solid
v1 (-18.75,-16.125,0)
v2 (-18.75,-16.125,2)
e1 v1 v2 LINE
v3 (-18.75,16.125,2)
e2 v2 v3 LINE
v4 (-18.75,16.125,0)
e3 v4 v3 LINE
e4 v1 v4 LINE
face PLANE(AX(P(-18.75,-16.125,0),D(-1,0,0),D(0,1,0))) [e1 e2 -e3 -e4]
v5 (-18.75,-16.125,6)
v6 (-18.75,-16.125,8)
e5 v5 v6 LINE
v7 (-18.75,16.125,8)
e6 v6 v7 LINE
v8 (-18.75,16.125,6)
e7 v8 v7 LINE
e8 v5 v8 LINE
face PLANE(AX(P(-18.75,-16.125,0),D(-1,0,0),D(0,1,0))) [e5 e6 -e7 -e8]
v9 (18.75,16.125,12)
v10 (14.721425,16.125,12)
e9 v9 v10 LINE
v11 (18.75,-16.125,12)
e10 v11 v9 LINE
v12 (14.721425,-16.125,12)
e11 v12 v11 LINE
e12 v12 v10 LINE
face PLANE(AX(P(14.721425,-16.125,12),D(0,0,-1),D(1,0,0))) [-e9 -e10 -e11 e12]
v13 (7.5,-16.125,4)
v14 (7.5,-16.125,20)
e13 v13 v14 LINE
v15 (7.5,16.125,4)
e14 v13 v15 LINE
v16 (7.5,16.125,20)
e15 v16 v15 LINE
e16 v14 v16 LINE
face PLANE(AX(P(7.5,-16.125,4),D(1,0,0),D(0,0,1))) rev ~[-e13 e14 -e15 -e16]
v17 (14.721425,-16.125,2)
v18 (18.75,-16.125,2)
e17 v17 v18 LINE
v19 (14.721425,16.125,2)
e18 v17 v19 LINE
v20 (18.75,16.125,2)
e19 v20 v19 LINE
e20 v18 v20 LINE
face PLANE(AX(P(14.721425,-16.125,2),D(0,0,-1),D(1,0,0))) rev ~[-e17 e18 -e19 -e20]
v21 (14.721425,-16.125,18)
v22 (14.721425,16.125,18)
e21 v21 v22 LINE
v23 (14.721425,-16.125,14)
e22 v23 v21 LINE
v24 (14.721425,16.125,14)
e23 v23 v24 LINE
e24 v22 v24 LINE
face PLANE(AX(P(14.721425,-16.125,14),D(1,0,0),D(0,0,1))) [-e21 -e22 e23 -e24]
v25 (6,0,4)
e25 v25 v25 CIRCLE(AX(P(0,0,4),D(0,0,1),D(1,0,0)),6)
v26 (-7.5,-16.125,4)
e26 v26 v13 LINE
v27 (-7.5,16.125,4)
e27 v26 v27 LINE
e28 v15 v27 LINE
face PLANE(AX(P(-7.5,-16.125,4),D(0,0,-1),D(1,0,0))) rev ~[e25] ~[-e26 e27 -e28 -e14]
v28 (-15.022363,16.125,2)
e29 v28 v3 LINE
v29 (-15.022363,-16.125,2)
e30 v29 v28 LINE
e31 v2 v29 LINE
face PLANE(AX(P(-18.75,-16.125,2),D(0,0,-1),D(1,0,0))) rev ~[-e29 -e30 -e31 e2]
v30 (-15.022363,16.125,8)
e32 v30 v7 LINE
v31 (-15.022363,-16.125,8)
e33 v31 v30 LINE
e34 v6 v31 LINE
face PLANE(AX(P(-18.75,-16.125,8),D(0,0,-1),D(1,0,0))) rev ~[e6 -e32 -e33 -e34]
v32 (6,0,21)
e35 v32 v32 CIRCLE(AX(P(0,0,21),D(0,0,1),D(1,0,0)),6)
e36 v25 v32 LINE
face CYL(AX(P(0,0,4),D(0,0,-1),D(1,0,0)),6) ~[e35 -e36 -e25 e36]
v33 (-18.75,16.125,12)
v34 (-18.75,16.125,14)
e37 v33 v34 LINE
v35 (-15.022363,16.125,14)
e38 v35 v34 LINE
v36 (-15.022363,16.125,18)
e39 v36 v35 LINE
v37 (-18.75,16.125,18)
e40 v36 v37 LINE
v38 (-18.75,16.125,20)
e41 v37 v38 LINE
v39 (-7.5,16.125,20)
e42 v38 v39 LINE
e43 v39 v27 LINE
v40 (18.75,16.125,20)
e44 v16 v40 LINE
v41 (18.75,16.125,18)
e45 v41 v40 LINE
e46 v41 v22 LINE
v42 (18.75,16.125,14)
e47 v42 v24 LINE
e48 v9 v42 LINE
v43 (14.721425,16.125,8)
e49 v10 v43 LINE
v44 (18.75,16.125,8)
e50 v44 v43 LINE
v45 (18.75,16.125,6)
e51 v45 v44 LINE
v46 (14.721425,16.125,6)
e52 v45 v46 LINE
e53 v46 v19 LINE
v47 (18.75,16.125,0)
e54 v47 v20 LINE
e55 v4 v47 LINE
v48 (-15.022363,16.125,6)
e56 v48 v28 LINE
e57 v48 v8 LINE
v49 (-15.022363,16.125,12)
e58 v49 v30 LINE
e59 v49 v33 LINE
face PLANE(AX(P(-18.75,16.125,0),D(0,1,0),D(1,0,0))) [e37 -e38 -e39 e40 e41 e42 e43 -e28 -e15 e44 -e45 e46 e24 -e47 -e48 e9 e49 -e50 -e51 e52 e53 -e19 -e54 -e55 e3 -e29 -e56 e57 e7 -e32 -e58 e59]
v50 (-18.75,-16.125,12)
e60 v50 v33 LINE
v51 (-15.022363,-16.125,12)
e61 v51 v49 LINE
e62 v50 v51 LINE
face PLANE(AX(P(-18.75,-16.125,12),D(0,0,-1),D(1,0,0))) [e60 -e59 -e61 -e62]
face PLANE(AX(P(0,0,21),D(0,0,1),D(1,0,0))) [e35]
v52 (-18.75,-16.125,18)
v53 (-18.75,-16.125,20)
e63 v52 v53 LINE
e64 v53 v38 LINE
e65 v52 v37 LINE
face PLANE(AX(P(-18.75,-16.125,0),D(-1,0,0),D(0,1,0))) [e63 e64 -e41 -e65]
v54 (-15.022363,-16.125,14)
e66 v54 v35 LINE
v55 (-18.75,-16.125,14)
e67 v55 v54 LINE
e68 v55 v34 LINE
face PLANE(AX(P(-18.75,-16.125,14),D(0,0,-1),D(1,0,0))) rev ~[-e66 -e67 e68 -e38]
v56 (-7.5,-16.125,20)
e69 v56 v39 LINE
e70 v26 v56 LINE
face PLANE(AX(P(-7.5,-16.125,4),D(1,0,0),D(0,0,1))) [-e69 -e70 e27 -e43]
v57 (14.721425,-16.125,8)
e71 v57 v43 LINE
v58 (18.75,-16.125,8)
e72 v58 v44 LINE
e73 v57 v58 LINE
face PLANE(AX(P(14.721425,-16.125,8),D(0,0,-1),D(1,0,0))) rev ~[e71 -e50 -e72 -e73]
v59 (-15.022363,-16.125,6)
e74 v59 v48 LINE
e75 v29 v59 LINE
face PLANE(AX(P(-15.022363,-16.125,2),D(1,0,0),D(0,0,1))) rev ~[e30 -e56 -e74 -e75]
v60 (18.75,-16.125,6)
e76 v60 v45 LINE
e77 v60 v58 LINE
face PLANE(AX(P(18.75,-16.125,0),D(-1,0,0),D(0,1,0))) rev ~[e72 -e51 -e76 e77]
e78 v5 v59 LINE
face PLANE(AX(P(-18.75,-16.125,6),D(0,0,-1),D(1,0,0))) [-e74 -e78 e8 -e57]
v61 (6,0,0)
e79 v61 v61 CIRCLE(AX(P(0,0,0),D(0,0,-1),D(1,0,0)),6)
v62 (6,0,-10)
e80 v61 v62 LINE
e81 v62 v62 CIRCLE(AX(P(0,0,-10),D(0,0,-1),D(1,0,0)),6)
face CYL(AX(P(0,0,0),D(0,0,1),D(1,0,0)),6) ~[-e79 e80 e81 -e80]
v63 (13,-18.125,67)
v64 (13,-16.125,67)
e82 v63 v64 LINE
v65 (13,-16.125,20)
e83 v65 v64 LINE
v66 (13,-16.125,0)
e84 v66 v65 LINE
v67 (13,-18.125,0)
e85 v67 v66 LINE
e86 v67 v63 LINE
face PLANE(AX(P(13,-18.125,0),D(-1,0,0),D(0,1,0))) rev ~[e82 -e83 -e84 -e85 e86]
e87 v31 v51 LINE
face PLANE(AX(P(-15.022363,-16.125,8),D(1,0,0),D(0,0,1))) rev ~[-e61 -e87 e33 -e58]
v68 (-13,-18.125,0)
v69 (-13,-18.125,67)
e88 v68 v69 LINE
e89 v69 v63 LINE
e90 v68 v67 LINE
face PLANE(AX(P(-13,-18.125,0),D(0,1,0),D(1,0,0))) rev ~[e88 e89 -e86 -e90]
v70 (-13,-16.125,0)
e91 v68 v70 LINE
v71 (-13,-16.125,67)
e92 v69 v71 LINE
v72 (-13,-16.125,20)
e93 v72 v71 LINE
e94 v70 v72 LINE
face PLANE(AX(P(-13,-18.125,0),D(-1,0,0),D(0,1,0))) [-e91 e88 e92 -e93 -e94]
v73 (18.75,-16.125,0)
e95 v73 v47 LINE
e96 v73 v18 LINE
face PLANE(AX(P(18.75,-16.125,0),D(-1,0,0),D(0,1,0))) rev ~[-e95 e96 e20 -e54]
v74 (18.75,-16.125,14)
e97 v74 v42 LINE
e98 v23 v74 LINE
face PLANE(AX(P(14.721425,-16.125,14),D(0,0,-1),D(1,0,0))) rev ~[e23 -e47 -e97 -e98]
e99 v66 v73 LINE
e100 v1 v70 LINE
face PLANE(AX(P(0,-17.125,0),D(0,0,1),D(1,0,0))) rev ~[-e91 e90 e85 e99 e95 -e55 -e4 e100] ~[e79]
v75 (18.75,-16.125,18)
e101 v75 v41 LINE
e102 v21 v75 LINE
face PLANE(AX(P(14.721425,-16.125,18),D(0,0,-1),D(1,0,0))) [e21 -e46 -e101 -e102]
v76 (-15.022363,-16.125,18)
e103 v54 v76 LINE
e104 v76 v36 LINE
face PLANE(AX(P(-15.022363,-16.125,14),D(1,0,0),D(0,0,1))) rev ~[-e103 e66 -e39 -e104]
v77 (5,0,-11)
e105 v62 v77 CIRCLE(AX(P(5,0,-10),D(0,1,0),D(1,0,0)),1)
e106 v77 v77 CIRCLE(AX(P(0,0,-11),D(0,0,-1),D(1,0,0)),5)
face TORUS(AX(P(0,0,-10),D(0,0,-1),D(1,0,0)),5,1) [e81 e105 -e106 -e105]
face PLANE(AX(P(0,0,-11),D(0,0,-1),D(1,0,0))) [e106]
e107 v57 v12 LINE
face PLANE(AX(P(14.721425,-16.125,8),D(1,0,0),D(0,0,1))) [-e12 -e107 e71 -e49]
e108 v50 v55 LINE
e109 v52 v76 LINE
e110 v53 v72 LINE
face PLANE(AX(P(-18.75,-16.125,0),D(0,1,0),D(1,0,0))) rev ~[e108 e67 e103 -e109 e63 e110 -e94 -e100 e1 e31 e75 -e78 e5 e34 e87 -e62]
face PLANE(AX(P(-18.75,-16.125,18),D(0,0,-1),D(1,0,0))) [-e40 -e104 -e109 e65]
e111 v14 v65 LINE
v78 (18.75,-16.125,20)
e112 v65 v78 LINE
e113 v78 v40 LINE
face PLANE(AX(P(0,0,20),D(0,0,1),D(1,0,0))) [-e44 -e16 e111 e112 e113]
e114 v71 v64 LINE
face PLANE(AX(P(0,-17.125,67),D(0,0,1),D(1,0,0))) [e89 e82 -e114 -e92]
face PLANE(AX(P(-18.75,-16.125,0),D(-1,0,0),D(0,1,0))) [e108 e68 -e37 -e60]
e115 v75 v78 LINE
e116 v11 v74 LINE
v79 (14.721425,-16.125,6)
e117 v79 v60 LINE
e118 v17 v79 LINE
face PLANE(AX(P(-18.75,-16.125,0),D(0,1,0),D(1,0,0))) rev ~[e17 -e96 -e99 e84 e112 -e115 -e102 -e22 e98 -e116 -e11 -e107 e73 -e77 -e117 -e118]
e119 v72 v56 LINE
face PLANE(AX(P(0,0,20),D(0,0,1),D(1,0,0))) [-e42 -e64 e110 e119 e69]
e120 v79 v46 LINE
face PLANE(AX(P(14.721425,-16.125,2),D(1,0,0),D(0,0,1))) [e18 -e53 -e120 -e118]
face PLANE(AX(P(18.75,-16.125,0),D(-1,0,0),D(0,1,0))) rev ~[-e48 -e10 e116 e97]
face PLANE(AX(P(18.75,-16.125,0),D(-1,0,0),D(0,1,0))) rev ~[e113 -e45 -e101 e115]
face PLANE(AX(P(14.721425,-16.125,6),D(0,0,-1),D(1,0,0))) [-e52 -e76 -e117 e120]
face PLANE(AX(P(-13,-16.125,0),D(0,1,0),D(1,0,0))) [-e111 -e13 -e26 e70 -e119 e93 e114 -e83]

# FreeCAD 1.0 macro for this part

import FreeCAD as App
import Part
import Sketcher
Q = App.Units.Quantity


def edges_at(feature, points):
    """Names of the edges that pass closest to the given points."""
    edges = feature.Shape.Edges
    near = lambda p: min(range(len(edges)), key=lambda i: edges[i].distToShape(Part.Vertex(*p))[0])
    return sorted({f"Edge{near(p) + 1}" for p in points})

doc = App.newDocument("Part")
body = doc.addObject("PartDesign::Body", "Body")

sketch1 = body.newObject("Sketcher::SketchObject", "Sketch")
sketch1.AttachmentSupport = (doc.getObject("XY_Plane"), [""])
sketch1.MapMode = "FlatFace"
sketch1.addGeometry(Part.LineSegment(App.Vector(-19, 16, 0), App.Vector(-19, -16, 0)), False)
sketch1.addGeometry(Part.LineSegment(App.Vector(-19, -16, 0), App.Vector(19, -16, 0)), False)
sketch1.addGeometry(Part.LineSegment(App.Vector(19, -16, 0), App.Vector(19, 16, 0)), False)
sketch1.addGeometry(Part.LineSegment(App.Vector(19, 16, 0), App.Vector(-19, 16, 0)), False)
sketch1.addConstraint(Sketcher.Constraint("Coincident", 0, 2, 1, 1))
sketch1.addConstraint(Sketcher.Constraint("Coincident", 1, 2, 2, 1))
sketch1.addConstraint(Sketcher.Constraint("Coincident", 2, 2, 3, 1))
sketch1.addConstraint(Sketcher.Constraint("Coincident", 3, 2, 0, 1))
sketch1.addConstraint(Sketcher.Constraint("Vertical", 0))
sketch1.addConstraint(Sketcher.Constraint("Horizontal", 1))
sketch1.addConstraint(Sketcher.Constraint("Vertical", 2))
sketch1.addConstraint(Sketcher.Constraint("Horizontal", 3))
sketch1.addConstraint(Sketcher.Constraint("Symmetric", 0, 2, 2, 2, -1, 1))
sketch1.addConstraint(Sketcher.Constraint("DistanceX", 1, 1, 1, 2, Q("37.5 mm")))
sketch1.addConstraint(Sketcher.Constraint("DistanceY", 0, 2, 0, 1, Q("32.25 mm")))
pad1 = body.newObject("PartDesign::Pad", "Pad")
pad1.Profile = sketch1
pad1.Length = 20

sketch2 = body.newObject("Sketcher::SketchObject", "Sketch001")
sketch2.AttachmentSupport = (doc.getObject("XY_Plane"), [""])
sketch2.MapMode = "FlatFace"
sketch2.addGeometry(Part.Circle(App.Vector(0, 0, 0), App.Vector(0, 0, 1), 6), False)
sketch2.addConstraint(Sketcher.Constraint("Coincident", 0, 3, -1, 1))
sketch2.addConstraint(Sketcher.Constraint("Diameter", 0, Q("12 mm")))
pad2 = body.newObject("PartDesign::Pad", "Pad001")
pad2.Profile = sketch2
pad2.Length = 11
pad2.Reversed = True

sketch3 = body.newObject("Sketcher::SketchObject", "Sketch002")
sketch3.AttachmentSupport = (doc.getObject("XZ_Plane"), [""])
sketch3.MapMode = "FlatFace"
sketch3.AttachmentOffset = App.Placement(App.Vector(0, 0, 16.125), App.Rotation())
sketch3.addGeometry(Part.LineSegment(App.Vector(-7.5, 20, 0), App.Vector(-7.5, 4, 0)), False)
sketch3.addGeometry(Part.LineSegment(App.Vector(-7.5, 4, 0), App.Vector(7.5, 4, 0)), False)
sketch3.addGeometry(Part.LineSegment(App.Vector(7.5, 4, 0), App.Vector(7.5, 20, 0)), False)
sketch3.addGeometry(Part.LineSegment(App.Vector(7.5, 20, 0), App.Vector(-7.5, 20, 0)), False)
sketch3.addGeometry(Part.LineSegment(App.Vector(-18.8, 18, 0), App.Vector(-18.8, 14, 0)), False)
sketch3.addGeometry(Part.LineSegment(App.Vector(-18.8, 14, 0), App.Vector(-15, 14, 0)), False)
sketch3.addGeometry(Part.LineSegment(App.Vector(-15, 14, 0), App.Vector(-15, 18, 0)), False)
sketch3.addGeometry(Part.LineSegment(App.Vector(-15, 18, 0), App.Vector(-18.8, 18, 0)), False)
sketch3.addGeometry(Part.LineSegment(App.Vector(-18.8, 6, 0), App.Vector(-18.8, 2, 0)), False)
sketch3.addGeometry(Part.LineSegment(App.Vector(-18.8, 2, 0), App.Vector(-15, 2, 0)), False)
sketch3.addGeometry(Part.LineSegment(App.Vector(-15, 2, 0), App.Vector(-15, 6, 0)), False)
sketch3.addGeometry(Part.LineSegment(App.Vector(-15, 6, 0), App.Vector(-18.8, 6, 0)), False)
sketch3.addGeometry(Part.LineSegment(App.Vector(14.7, 18, 0), App.Vector(14.7, 14, 0)), False)
sketch3.addGeometry(Part.LineSegment(App.Vector(14.7, 14, 0), App.Vector(18.8, 14, 0)), False)
sketch3.addGeometry(Part.LineSegment(App.Vector(18.8, 14, 0), App.Vector(18.8, 18, 0)), False)
sketch3.addGeometry(Part.LineSegment(App.Vector(18.8, 18, 0), App.Vector(14.7, 18, 0)), False)
sketch3.addGeometry(Part.LineSegment(App.Vector(14.7, 12, 0), App.Vector(14.7, 8, 0)), False)
sketch3.addGeometry(Part.LineSegment(App.Vector(14.7, 8, 0), App.Vector(18.8, 8, 0)), False)
sketch3.addGeometry(Part.LineSegment(App.Vector(18.8, 8, 0), App.Vector(18.8, 12, 0)), False)
sketch3.addGeometry(Part.LineSegment(App.Vector(18.8, 12, 0), App.Vector(14.7, 12, 0)), False)
sketch3.addGeometry(Part.LineSegment(App.Vector(14.7, 6, 0), App.Vector(14.7, 2, 0)), False)
sketch3.addGeometry(Part.LineSegment(App.Vector(14.7, 2, 0), App.Vector(18.8, 2, 0)), False)
sketch3.addGeometry(Part.LineSegment(App.Vector(18.8, 2, 0), App.Vector(18.8, 6, 0)), False)
sketch3.addGeometry(Part.LineSegment(App.Vector(18.8, 6, 0), App.Vector(14.7, 6, 0)), False)
sketch3.addGeometry(Part.LineSegment(App.Vector(-18.8, 12, 0), App.Vector(-18.8, 8, 0)), False)
sketch3.addGeometry(Part.LineSegment(App.Vector(-18.8, 8, 0), App.Vector(-15, 8, 0)), False)
sketch3.addGeometry(Part.LineSegment(App.Vector(-15, 8, 0), App.Vector(-15, 12, 0)), False)
sketch3.addGeometry(Part.LineSegment(App.Vector(-15, 12, 0), App.Vector(-18.8, 12, 0)), False)
sketch3.addConstraint(Sketcher.Constraint("Coincident", 0, 2, 1, 1))
sketch3.addConstraint(Sketcher.Constraint("Coincident", 1, 2, 2, 1))
sketch3.addConstraint(Sketcher.Constraint("Coincident", 2, 2, 3, 1))
sketch3.addConstraint(Sketcher.Constraint("Coincident", 3, 2, 0, 1))
sketch3.addConstraint(Sketcher.Constraint("Coincident", 4, 2, 5, 1))
sketch3.addConstraint(Sketcher.Constraint("Coincident", 5, 2, 6, 1))
sketch3.addConstraint(Sketcher.Constraint("Coincident", 6, 2, 7, 1))
sketch3.addConstraint(Sketcher.Constraint("Coincident", 7, 2, 4, 1))
sketch3.addConstraint(Sketcher.Constraint("Coincident", 8, 2, 9, 1))
sketch3.addConstraint(Sketcher.Constraint("Coincident", 9, 2, 10, 1))
sketch3.addConstraint(Sketcher.Constraint("Coincident", 10, 2, 11, 1))
sketch3.addConstraint(Sketcher.Constraint("Coincident", 11, 2, 8, 1))
sketch3.addConstraint(Sketcher.Constraint("Coincident", 12, 2, 13, 1))
sketch3.addConstraint(Sketcher.Constraint("Coincident", 13, 2, 14, 1))
sketch3.addConstraint(Sketcher.Constraint("Coincident", 14, 2, 15, 1))
sketch3.addConstraint(Sketcher.Constraint("Coincident", 15, 2, 12, 1))
sketch3.addConstraint(Sketcher.Constraint("Coincident", 16, 2, 17, 1))
sketch3.addConstraint(Sketcher.Constraint("Coincident", 17, 2, 18, 1))
sketch3.addConstraint(Sketcher.Constraint("Coincident", 18, 2, 19, 1))
sketch3.addConstraint(Sketcher.Constraint("Coincident", 19, 2, 16, 1))
sketch3.addConstraint(Sketcher.Constraint("Coincident", 20, 2, 21, 1))
sketch3.addConstraint(Sketcher.Constraint("Coincident", 21, 2, 22, 1))
sketch3.addConstraint(Sketcher.Constraint("Coincident", 22, 2, 23, 1))
sketch3.addConstraint(Sketcher.Constraint("Coincident", 23, 2, 20, 1))
sketch3.addConstraint(Sketcher.Constraint("Coincident", 24, 2, 25, 1))
sketch3.addConstraint(Sketcher.Constraint("Coincident", 25, 2, 26, 1))
sketch3.addConstraint(Sketcher.Constraint("Coincident", 26, 2, 27, 1))
sketch3.addConstraint(Sketcher.Constraint("Coincident", 27, 2, 24, 1))
sketch3.addConstraint(Sketcher.Constraint("Vertical", 0))
sketch3.addConstraint(Sketcher.Constraint("Horizontal", 1))
sketch3.addConstraint(Sketcher.Constraint("Vertical", 2))
sketch3.addConstraint(Sketcher.Constraint("Horizontal", 3))
sketch3.addConstraint(Sketcher.Constraint("Vertical", 4))
sketch3.addConstraint(Sketcher.Constraint("Horizontal", 5))
sketch3.addConstraint(Sketcher.Constraint("Vertical", 6))
sketch3.addConstraint(Sketcher.Constraint("Horizontal", 7))
sketch3.addConstraint(Sketcher.Constraint("Vertical", 8))
sketch3.addConstraint(Sketcher.Constraint("Horizontal", 9))
sketch3.addConstraint(Sketcher.Constraint("Vertical", 10))
sketch3.addConstraint(Sketcher.Constraint("Horizontal", 11))
sketch3.addConstraint(Sketcher.Constraint("Vertical", 12))
sketch3.addConstraint(Sketcher.Constraint("Horizontal", 13))
sketch3.addConstraint(Sketcher.Constraint("Vertical", 14))
sketch3.addConstraint(Sketcher.Constraint("Horizontal", 15))
sketch3.addConstraint(Sketcher.Constraint("Vertical", 16))
sketch3.addConstraint(Sketcher.Constraint("Horizontal", 17))
sketch3.addConstraint(Sketcher.Constraint("Vertical", 18))
sketch3.addConstraint(Sketcher.Constraint("Horizontal", 19))
sketch3.addConstraint(Sketcher.Constraint("Vertical", 20))
sketch3.addConstraint(Sketcher.Constraint("Horizontal", 21))
sketch3.addConstraint(Sketcher.Constraint("Vertical", 22))
sketch3.addConstraint(Sketcher.Constraint("Horizontal", 23))
sketch3.addConstraint(Sketcher.Constraint("Vertical", 24))
sketch3.addConstraint(Sketcher.Constraint("Horizontal", 25))
sketch3.addConstraint(Sketcher.Constraint("Vertical", 26))
sketch3.addConstraint(Sketcher.Constraint("Horizontal", 27))
sketch3.addConstraint(Sketcher.Constraint("Symmetric", 4, 2, 13, 2, -2))
sketch3.addConstraint(Sketcher.Constraint("Symmetric", 8, 2, 21, 2, -2))
sketch3.addConstraint(Sketcher.Constraint("Symmetric", 17, 2, 24, 2, -2))
sketch3.addConstraint(Sketcher.Constraint("Horizontal", 7, 2, 14, 2))
sketch3.addConstraint(Sketcher.Constraint("Horizontal", 11, 2, 22, 2))
sketch3.addConstraint(Sketcher.Constraint("Horizontal", 19, 2, 26, 2))
sketch3.addConstraint(Sketcher.Constraint("Vertical", 7, 2, 8, 2))
sketch3.addConstraint(Sketcher.Constraint("Vertical", 6, 2, 9, 2))
sketch3.addConstraint(Sketcher.Constraint("Vertical", 15, 2, 16, 2))
sketch3.addConstraint(Sketcher.Constraint("Vertical", 14, 2, 17, 2))
sketch3.addConstraint(Sketcher.Constraint("Vertical", 19, 2, 20, 2))
sketch3.addConstraint(Sketcher.Constraint("Vertical", 10, 2, 25, 2))
sketch3.addConstraint(Sketcher.Constraint("Equal", 6, 8))
sketch3.addConstraint(Sketcher.Constraint("Equal", 14, 16))
sketch3.addConstraint(Sketcher.Constraint("DistanceX", 1, 1, 1, 2, Q("15 mm")))
sketch3.addConstraint(Sketcher.Constraint("DistanceY", 0, 2, 0, 1, Q("16 mm")))
sketch3.addConstraint(Sketcher.Constraint("DistanceY", 4, 2, 4, 1, Q("4 mm")))
sketch3.addConstraint(Sketcher.Constraint("DistanceY", -1, 1, 0, 2, Q("4 mm")))
sketch3.addConstraint(Sketcher.Constraint("DistanceY", -1, 1, 4, 2, Q("14 mm")))
sketch3.addConstraint(Sketcher.Constraint("DistanceY", -1, 1, 8, 2, Q("2 mm")))
sketch3.addConstraint(Sketcher.Constraint("DistanceY", -1, 1, 16, 2, Q("8 mm")))
sketch3.addConstraint(Sketcher.Constraint("DistanceX", 0, 2, -1, 1, Q("7.5 mm")))
sketch3.addConstraint(Sketcher.Constraint("DistanceX", 4, 2, -1, 1, Q("18.75 mm")))
sketch3.addConstraint(Sketcher.Constraint("DistanceX", 5, 1, 5, 2, Q("3.727637 mm")))
sketch3.addConstraint(Sketcher.Constraint("DistanceX", 13, 1, 13, 2, Q("4.028575 mm")))
pocket1 = body.newObject("PartDesign::Pocket", "Pocket")
pocket1.Profile = sketch3
pocket1.Type = "ThroughAll"
doc.recompute()

fillet = body.newObject("PartDesign::Fillet", "Fillet")
fillet.Base = (pocket1, edges_at(pocket1, [(-6, 0, -11)]))
fillet.Radius = 1

sketch4 = body.newObject("Sketcher::SketchObject", "Sketch003")
sketch4.AttachmentSupport = (doc.getObject("XY_Plane"), [""])
sketch4.MapMode = "FlatFace"
sketch4.AttachmentOffset = App.Placement(App.Vector(0, 0, 4), App.Rotation())
sketch4.addGeometry(Part.Circle(App.Vector(0, 0, 0), App.Vector(0, 0, 1), 6), False)
sketch4.addConstraint(Sketcher.Constraint("Coincident", 0, 3, -1, 1))
sketch4.addConstraint(Sketcher.Constraint("Diameter", 0, Q("12 mm")))
pad3 = body.newObject("PartDesign::Pad", "Pad002")
pad3.Profile = sketch4
pad3.Length = 17

sketch5 = body.newObject("Sketcher::SketchObject", "Sketch004")
sketch5.AttachmentSupport = (doc.getObject("XY_Plane"), [""])
sketch5.MapMode = "FlatFace"
sketch5.addGeometry(Part.LineSegment(App.Vector(-13, -16.1, 0), App.Vector(-13, -18.1, 0)), False)
sketch5.addGeometry(Part.LineSegment(App.Vector(-13, -18.1, 0), App.Vector(13, -18.1, 0)), False)
sketch5.addGeometry(Part.LineSegment(App.Vector(13, -18.1, 0), App.Vector(13, -16.1, 0)), False)
sketch5.addGeometry(Part.LineSegment(App.Vector(13, -16.1, 0), App.Vector(-13, -16.1, 0)), False)
sketch5.addConstraint(Sketcher.Constraint("Coincident", 0, 2, 1, 1))
sketch5.addConstraint(Sketcher.Constraint("Coincident", 1, 2, 2, 1))
sketch5.addConstraint(Sketcher.Constraint("Coincident", 2, 2, 3, 1))
sketch5.addConstraint(Sketcher.Constraint("Coincident", 3, 2, 0, 1))
sketch5.addConstraint(Sketcher.Constraint("Vertical", 0))
sketch5.addConstraint(Sketcher.Constraint("Horizontal", 1))
sketch5.addConstraint(Sketcher.Constraint("Vertical", 2))
sketch5.addConstraint(Sketcher.Constraint("Horizontal", 3))
sketch5.addConstraint(Sketcher.Constraint("DistanceX", 1, 1, 1, 2, Q("26 mm")))
sketch5.addConstraint(Sketcher.Constraint("DistanceY", 0, 2, 0, 1, Q("2 mm")))
sketch5.addConstraint(Sketcher.Constraint("DistanceX", 0, 2, -1, 1, Q("13 mm")))
sketch5.addConstraint(Sketcher.Constraint("DistanceY", 0, 2, -1, 1, Q("18.125 mm")))
pad4 = body.newObject("PartDesign::Pad", "Pad003")
pad4.Profile = sketch5
pad4.Length = 67

doc.recompute()
